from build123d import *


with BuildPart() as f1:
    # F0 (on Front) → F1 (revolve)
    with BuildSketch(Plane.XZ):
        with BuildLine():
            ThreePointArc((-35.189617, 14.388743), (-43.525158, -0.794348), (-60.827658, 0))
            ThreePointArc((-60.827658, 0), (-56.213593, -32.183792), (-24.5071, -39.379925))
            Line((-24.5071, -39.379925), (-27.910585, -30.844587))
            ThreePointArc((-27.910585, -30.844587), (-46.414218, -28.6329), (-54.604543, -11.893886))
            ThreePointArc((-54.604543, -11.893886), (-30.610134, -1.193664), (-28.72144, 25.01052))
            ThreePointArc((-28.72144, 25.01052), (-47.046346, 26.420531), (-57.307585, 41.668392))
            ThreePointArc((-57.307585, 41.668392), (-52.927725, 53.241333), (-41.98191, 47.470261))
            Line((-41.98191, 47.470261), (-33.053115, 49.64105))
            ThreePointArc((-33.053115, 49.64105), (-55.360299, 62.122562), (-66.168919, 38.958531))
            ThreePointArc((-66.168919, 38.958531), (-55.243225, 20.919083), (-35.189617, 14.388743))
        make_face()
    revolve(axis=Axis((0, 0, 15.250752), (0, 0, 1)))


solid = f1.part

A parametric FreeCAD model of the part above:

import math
import FreeCAD as App
import Part
import Sketcher

V = App.Vector

doc = App.newDocument("Part")
body = doc.addObject("PartDesign::Body", "Body")

sketch1 = doc.addObject("Sketcher::SketchObject", "Sketch")
body.addObject(sketch1)
sketch1.AttachmentSupport = (doc.XZ_Plane, [""])
sketch1.MapMode = "FlatFace"
sketch1.addGeometry([
    Part.ArcOfCircle(Part.Circle(V(-51.539087, 13.48497, 0), V(0, 0, 1), 16.37443), math.radians(-124.559429), math.radians(3.164002)),
    Part.ArcOfCircle(Part.Circle(V(-35.130413, -12.738532, 0), V(0, 0, 1), 28.681328), math.radians(153.631655), math.radians(291.739749)),
    Part.LineSegment(V(-24.5071, -39.379925, 0), V(-27.910585, -30.844587, 0)),
    Part.ArcOfCircle(Part.Circle(V(-35.130414, -12.738533, 0), V(0, 0, 1), 19.492437), math.radians(177.516478), math.radians(291.739752)),
    Part.ArcOfCircle(Part.Circle(V(-51.539086, 13.484969, 0), V(0, 0, 1), 25.563319), math.radians(-96.887268), math.radians(26.799057)),
    Part.ArcOfCircle(Part.Circle(V(-36.427497, 44.643264, 0), V(0, 0, 1), 21.090944), math.radians(-171.891407), math.radians(-68.569474)),
    Part.ArcOfCircle(Part.Circle(V(-50.004561, 45.519777, 0), V(0, 0, 1), 8.25635), math.radians(13.664758), math.radians(207.805751)),
    Part.LineSegment(V(-41.98191, 47.470261, 0), V(-33.053115, 49.64105, 0)),
    Part.ArcOfCircle(Part.Circle(V(-50.004561, 45.519777, 0), V(0, 0, 1), 17.44524), math.radians(13.664761), math.radians(202.092637)),
    Part.ArcOfCircle(Part.Circle(V(-36.427497, 44.643264, 0), V(0, 0, 1), 30.279834), math.radians(-169.179084), math.radians(-87.657019)),
], False)
sketch1.addConstraint([
    Sketcher.Constraint("Coincident", 0, 1, 1, 1),
    Sketcher.Constraint("Coincident", 1, 2, 2, 1),
    Sketcher.Constraint("Coincident", 2, 2, 3, 2),
    Sketcher.Constraint("Coincident", 3, 1, 4, 1),
    Sketcher.Constraint("Coincident", 4, 2, 5, 2),
    Sketcher.Constraint("Coincident", 5, 1, 6, 2),
    Sketcher.Constraint("Coincident", 6, 1, 7, 1),
    Sketcher.Constraint("Coincident", 7, 2, 8, 1),
    Sketcher.Constraint("Coincident", 8, 2, 9, 1),
    Sketcher.Constraint("Coincident", 9, 2, 0, 2),
    Sketcher.Constraint("Coincident", 3, 3, 1, 3),
    Sketcher.Constraint("Coincident", 4, 3, 0, 3),
    Sketcher.Constraint("Coincident", 8, 3, 6, 3),
    Sketcher.Constraint("Coincident", 9, 3, 5, 3),
    Sketcher.Constraint("PointOnObject", 0, 1, -1),
    Sketcher.Constraint("Equal", 2, 7),
    Sketcher.Constraint("Radius", 0, 16.37443),
    Sketcher.Constraint("Radius", 1, 28.681328),
    Sketcher.Constraint("Radius", 4, 25.563319),
    Sketcher.Constraint("Radius", 6, 8.25635),
    Sketcher.Constraint("Radius", 8, 17.44524),
    Sketcher.Constraint("Radius", 5, 21.090944),
    Sketcher.Constraint("Radius", 9, 30.279834),
    Sketcher.Constraint("DistanceX", 1, 2, -1, 1, 24.5071),
    Sketcher.Constraint("DistanceY", 1, 3, 0, 3, 26.223502),
    Sketcher.Constraint("DistanceX", 4, 3, 2, 2, 23.628501),
    Sketcher.Constraint("DistanceX", 5, 1, 0, 3, 5.768498),
    Sketcher.Constraint("DistanceY", -1, 1, 0, 3, 13.48497),
    Sketcher.Constraint("DistanceX", 6, 3, -1, 1, 50.004561),
    Sketcher.Constraint("DistanceX", 4, 2, -1, 1, 28.72144),
    Sketcher.Constraint("DistanceY", -1, 1, 4, 2, 25.01052),
    Sketcher.Constraint("DistanceX", 6, 1, -1, 1, 41.98191),
    Sketcher.Constraint("DistanceY", -1, 1, 6, 1, 47.470261),
    Sketcher.Constraint("DistanceY", -1, 1, 7, 2, 49.64105),
])
revolution = doc.addObject("PartDesign::Revolution", "Revolution")
body.addObject(revolution)
revolution.Profile = sketch1
revolution.ReferenceAxis = (sketch1, ["V_Axis"])
revolution.Angle = 360

doc.recompute()
